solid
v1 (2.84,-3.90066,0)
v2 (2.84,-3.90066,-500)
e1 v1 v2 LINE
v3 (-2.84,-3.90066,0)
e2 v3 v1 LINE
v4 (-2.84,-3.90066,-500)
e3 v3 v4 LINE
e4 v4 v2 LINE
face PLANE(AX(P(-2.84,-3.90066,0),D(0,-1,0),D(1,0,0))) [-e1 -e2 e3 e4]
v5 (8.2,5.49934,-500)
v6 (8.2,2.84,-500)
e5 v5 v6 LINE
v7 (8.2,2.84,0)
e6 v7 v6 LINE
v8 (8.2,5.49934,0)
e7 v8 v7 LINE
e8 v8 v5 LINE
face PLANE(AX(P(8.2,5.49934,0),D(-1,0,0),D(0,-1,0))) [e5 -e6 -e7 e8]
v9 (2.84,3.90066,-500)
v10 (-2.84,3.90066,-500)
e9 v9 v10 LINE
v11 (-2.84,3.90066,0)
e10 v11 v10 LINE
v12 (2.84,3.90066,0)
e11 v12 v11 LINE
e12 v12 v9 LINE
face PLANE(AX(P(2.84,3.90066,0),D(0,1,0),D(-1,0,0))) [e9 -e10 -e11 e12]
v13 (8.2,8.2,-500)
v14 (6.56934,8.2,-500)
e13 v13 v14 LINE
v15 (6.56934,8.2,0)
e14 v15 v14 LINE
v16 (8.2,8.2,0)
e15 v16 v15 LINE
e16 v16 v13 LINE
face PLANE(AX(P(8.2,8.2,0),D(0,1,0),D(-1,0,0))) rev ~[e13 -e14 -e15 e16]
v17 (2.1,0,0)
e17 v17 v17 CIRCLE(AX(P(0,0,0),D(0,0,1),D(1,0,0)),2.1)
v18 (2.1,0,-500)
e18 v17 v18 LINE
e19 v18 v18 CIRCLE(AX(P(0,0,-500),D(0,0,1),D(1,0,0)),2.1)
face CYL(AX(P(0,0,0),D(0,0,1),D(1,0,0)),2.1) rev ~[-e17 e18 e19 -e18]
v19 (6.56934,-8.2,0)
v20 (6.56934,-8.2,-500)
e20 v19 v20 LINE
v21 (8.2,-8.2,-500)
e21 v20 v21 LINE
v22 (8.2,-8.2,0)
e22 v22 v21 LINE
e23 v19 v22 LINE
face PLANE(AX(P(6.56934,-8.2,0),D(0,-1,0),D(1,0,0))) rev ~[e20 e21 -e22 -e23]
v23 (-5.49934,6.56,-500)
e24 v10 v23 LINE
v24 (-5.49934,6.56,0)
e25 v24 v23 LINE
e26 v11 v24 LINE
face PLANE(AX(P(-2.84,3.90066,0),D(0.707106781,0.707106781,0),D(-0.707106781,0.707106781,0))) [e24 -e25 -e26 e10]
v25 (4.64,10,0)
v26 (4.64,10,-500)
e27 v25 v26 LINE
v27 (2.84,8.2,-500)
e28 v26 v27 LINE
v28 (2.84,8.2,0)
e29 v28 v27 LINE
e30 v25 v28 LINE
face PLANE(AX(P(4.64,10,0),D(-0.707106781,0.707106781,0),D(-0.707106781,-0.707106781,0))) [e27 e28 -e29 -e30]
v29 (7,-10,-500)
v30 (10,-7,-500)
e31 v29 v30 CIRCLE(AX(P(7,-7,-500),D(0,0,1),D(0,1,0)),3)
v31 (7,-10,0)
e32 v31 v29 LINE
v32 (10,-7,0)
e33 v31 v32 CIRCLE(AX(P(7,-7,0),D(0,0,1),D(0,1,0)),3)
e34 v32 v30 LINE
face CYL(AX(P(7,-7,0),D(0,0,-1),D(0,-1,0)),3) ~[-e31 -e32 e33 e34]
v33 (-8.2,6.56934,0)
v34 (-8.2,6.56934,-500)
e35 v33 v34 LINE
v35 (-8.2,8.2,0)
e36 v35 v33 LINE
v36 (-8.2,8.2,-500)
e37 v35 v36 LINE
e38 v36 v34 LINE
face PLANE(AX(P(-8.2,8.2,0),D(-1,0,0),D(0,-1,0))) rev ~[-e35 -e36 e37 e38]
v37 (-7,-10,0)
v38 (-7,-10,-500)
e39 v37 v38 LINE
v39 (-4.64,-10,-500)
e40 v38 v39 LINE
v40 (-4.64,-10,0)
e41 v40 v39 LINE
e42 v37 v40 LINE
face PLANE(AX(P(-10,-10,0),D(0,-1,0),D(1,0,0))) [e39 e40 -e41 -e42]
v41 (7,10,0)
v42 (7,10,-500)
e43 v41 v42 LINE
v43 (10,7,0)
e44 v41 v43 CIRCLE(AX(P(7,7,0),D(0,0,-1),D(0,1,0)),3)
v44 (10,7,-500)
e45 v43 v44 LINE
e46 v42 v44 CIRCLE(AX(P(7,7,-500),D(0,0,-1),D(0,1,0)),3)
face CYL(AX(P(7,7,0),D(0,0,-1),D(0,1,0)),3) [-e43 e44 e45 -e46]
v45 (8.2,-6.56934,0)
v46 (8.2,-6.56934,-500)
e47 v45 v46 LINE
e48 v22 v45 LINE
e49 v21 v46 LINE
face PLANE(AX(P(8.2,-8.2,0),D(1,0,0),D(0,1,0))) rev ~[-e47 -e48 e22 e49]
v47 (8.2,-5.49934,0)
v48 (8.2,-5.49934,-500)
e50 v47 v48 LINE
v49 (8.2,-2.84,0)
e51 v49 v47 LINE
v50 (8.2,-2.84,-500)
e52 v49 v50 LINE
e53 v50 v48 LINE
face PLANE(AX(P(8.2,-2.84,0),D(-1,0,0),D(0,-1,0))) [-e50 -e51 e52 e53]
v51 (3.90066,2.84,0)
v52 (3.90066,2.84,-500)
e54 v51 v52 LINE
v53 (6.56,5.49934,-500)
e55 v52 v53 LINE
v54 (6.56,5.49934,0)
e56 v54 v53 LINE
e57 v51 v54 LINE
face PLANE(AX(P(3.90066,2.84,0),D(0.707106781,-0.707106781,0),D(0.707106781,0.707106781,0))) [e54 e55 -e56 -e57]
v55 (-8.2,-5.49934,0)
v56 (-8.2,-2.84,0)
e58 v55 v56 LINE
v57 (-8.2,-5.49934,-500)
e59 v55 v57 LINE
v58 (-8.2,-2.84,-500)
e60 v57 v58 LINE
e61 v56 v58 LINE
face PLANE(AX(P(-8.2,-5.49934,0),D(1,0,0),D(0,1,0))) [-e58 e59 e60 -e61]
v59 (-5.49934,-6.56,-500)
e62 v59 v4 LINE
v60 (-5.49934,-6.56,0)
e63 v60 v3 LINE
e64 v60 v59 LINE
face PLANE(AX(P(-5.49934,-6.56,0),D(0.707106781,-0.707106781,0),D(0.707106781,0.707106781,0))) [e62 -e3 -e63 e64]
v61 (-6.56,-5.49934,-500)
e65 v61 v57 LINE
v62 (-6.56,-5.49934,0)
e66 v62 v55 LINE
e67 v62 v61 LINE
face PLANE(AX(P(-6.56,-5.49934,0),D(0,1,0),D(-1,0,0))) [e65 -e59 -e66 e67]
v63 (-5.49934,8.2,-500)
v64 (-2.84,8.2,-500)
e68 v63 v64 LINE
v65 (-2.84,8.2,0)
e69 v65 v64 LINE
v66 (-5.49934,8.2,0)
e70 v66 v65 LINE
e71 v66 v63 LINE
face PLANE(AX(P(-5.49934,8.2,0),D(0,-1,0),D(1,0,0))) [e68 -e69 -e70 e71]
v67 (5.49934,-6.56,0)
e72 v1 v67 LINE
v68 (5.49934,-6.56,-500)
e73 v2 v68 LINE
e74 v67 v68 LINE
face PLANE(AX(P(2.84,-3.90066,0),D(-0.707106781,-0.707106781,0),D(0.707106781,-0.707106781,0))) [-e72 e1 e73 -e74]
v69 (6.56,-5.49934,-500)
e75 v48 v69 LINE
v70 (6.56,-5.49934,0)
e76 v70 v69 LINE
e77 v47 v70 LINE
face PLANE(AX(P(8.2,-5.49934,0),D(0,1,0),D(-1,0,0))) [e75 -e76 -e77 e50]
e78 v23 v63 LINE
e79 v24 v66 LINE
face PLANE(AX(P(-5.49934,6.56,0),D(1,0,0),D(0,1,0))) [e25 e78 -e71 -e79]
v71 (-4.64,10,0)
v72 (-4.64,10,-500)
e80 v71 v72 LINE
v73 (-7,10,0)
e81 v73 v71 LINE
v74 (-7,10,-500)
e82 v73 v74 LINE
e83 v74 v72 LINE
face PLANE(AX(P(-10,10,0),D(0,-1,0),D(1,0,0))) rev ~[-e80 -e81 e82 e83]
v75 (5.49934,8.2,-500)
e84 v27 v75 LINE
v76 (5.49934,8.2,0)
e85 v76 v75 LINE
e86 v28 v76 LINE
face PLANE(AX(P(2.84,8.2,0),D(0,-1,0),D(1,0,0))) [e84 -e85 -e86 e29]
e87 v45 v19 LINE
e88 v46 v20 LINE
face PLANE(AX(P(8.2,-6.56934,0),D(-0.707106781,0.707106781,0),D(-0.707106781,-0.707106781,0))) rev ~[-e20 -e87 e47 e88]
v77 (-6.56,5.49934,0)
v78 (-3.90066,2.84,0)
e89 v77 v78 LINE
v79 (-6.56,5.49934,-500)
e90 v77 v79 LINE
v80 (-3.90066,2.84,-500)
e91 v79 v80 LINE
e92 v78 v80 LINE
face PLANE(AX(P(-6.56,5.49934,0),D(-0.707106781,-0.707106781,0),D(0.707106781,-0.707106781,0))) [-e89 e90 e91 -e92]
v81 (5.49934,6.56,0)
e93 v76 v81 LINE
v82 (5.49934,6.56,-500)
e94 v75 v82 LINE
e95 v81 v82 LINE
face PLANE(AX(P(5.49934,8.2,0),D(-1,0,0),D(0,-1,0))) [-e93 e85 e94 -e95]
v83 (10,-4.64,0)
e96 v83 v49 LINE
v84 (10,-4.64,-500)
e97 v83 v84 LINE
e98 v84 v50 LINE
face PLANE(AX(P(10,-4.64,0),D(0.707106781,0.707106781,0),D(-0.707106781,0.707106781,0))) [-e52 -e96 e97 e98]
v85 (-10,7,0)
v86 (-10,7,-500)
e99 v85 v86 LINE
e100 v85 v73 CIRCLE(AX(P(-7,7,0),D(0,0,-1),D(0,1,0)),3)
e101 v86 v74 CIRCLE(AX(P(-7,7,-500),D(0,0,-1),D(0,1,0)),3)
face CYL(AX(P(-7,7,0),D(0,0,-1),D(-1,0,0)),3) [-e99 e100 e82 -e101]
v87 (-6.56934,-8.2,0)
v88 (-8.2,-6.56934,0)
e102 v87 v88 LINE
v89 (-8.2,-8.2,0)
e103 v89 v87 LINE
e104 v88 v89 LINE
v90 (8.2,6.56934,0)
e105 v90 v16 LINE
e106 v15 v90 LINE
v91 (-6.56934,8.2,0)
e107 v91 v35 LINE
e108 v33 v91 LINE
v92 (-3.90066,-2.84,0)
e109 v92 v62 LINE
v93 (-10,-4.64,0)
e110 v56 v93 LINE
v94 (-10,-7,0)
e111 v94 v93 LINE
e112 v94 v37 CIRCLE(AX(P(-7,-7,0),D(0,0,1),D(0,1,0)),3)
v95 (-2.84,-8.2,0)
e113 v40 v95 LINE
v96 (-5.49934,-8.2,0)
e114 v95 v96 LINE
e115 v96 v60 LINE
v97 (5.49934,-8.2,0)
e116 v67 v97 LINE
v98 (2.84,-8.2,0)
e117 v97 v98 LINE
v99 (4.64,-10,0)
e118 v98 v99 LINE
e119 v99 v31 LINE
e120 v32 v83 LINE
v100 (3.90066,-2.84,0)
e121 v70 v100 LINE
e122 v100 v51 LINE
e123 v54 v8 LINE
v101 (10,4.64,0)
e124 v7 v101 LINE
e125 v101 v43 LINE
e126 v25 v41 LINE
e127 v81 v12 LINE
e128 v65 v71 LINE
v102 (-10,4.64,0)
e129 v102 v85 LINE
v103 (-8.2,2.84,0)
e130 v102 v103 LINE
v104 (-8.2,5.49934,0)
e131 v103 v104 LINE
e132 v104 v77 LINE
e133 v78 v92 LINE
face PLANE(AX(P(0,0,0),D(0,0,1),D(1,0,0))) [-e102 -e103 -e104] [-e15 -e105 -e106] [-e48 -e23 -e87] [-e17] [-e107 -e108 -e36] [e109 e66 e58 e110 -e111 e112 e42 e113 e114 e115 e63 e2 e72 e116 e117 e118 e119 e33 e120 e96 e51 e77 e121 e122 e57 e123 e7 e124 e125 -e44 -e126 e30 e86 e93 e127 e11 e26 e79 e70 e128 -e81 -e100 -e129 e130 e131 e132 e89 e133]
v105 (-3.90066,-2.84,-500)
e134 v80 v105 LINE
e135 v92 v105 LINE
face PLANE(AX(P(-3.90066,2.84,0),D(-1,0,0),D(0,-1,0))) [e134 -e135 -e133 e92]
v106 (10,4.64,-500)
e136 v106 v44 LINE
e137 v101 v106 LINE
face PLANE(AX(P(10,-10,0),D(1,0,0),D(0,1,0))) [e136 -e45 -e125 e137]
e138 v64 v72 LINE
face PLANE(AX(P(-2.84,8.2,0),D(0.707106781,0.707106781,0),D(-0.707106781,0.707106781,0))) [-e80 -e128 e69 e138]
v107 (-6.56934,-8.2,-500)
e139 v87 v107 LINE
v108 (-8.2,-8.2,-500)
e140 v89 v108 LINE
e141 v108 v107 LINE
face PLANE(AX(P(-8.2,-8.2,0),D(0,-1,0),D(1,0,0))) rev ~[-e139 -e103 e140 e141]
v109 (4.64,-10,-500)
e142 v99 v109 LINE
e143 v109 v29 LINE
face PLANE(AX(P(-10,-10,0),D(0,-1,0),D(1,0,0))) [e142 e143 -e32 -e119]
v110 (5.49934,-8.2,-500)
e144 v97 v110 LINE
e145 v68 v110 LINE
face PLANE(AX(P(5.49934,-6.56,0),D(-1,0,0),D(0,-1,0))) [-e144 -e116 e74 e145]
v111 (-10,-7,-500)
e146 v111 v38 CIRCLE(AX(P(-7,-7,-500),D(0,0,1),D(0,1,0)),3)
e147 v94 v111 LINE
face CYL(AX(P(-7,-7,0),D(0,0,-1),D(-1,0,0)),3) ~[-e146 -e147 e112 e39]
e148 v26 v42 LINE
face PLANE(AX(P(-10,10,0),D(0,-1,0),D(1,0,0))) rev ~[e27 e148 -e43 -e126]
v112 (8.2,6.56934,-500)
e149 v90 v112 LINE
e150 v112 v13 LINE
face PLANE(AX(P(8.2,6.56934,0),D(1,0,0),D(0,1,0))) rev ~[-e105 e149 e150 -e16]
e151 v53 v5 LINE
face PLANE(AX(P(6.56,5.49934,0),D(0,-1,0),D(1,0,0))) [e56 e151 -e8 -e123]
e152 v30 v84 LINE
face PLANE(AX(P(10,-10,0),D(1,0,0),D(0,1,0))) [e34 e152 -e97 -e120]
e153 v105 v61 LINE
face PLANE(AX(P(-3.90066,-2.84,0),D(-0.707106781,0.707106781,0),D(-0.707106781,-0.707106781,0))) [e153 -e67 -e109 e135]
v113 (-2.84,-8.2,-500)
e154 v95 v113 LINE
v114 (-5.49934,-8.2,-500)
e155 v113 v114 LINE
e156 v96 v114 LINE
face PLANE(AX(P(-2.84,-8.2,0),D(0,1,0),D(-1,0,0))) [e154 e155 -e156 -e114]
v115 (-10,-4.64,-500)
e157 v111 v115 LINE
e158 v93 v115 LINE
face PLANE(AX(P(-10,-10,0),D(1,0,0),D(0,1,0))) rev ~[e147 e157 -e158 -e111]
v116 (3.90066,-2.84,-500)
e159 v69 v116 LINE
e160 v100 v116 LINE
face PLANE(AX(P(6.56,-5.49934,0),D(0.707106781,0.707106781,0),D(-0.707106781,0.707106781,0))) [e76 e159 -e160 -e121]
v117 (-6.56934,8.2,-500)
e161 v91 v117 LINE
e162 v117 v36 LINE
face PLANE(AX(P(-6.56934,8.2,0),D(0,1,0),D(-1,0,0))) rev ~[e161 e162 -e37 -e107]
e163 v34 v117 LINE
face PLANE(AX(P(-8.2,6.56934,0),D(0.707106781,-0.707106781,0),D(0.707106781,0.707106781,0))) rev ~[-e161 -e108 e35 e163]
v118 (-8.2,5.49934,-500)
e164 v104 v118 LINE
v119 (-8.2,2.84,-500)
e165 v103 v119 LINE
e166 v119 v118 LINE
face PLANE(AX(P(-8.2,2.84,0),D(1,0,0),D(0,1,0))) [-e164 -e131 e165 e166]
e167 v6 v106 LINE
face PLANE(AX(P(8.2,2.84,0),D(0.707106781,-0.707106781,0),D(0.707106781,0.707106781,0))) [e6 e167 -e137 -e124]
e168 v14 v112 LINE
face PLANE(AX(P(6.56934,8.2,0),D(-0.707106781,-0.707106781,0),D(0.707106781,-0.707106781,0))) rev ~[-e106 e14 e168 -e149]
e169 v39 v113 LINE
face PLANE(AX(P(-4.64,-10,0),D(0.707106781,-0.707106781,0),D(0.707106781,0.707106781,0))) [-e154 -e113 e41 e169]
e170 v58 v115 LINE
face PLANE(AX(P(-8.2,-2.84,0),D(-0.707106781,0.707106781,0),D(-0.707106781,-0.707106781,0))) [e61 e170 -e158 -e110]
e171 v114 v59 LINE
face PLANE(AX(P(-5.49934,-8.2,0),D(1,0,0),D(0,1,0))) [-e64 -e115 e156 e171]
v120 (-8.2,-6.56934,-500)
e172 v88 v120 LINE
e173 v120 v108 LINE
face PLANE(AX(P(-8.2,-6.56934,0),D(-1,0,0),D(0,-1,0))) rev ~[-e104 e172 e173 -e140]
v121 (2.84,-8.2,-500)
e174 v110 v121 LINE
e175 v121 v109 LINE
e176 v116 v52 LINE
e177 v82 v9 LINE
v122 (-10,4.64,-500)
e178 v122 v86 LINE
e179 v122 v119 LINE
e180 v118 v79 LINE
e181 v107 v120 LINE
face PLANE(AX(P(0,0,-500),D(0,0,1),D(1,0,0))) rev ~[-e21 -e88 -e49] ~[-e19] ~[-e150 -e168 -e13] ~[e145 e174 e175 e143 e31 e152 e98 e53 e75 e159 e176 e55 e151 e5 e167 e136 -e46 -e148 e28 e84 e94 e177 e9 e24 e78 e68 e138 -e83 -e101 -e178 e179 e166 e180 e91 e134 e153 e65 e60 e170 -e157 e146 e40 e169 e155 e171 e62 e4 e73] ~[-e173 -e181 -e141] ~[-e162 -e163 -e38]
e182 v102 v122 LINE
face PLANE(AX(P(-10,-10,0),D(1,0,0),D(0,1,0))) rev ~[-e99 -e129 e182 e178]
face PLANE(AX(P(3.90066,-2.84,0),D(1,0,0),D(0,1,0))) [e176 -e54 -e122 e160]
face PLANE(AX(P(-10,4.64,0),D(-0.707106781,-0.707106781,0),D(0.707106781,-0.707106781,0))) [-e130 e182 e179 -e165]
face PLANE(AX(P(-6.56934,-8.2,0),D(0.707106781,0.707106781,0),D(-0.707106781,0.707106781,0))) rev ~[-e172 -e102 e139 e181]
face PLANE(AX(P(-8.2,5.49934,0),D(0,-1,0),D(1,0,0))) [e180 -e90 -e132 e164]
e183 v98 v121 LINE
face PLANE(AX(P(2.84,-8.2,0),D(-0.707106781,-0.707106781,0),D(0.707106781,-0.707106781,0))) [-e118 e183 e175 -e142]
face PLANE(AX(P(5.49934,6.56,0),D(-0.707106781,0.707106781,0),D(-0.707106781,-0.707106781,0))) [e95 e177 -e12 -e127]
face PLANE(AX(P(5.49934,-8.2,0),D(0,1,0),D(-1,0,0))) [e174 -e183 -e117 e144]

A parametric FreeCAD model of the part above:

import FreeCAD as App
import Part
import Sketcher
Q = App.Units.Quantity


def edges_at(feature, points):
    """Names of the edges that pass closest to the given points."""
    edges = feature.Shape.Edges
    near = lambda p: min(range(len(edges)), key=lambda i: edges[i].distToShape(Part.Vertex(*p))[0])
    return sorted({f"Edge{near(p) + 1}" for p in points})

doc = App.newDocument("Part")
params = doc.addObject("Spreadsheet::Sheet", "Params")
for row, (alias, value) in enumerate([
    ("sketch1_width", "20 mm"),
    ("pad1_length", "500 mm"),
    ("sketch2_width", "9.28 mm"),
    ("sketch2_width2", "5.68 mm"),
    ("sketch2_height", "1.64 mm"),
    ("pocket1_length", "500 mm"),
    ("sketch3_diameter", "4.2 mm"),
    ("pocket3_length", "500 mm"),
    ("fillet_radius", "3 mm"),
], start=1):
    params.set(f"A{row}", alias)
    params.set(f"B{row}", "=" + value)
    params.setAlias(f"B{row}", alias)

body = doc.addObject("PartDesign::Body", "Body")

# Sketch on XY plane
sketch1 = body.newObject("Sketcher::SketchObject", "Sketch")
sketch1.AttachmentSupport = (doc.getObject("XY_Plane"), [""])
sketch1.MapMode = "FlatFace"
sketch1.addGeometry(Part.LineSegment(App.Vector(-10, 10, 0), App.Vector(-10, -10, 0)), False)
sketch1.addGeometry(Part.LineSegment(App.Vector(-10, -10, 0), App.Vector(10, -10, 0)), False)
sketch1.addGeometry(Part.LineSegment(App.Vector(10, -10, 0), App.Vector(10, 10, 0)), False)
sketch1.addGeometry(Part.LineSegment(App.Vector(10, 10, 0), App.Vector(-10, 10, 0)), False)
sketch1.addConstraint(Sketcher.Constraint("Coincident", 0, 2, 1, 1))
sketch1.addConstraint(Sketcher.Constraint("Coincident", 1, 2, 2, 1))
sketch1.addConstraint(Sketcher.Constraint("Coincident", 2, 2, 3, 1))
sketch1.addConstraint(Sketcher.Constraint("Coincident", 3, 2, 0, 1))
sketch1.addConstraint(Sketcher.Constraint("Vertical", 0))
sketch1.addConstraint(Sketcher.Constraint("Horizontal", 1))
sketch1.addConstraint(Sketcher.Constraint("Vertical", 2))
sketch1.addConstraint(Sketcher.Constraint("Horizontal", 3))
sketch1.addConstraint(Sketcher.Constraint("Symmetric", 0, 2, 2, 2, -1, 1))
sketch1.addConstraint(Sketcher.Constraint("Equal", 3, 0))
sketch1.addConstraint(Sketcher.Constraint("DistanceX", 1, 1, 1, 2, Q("20 mm")))
sketch1.setExpression("Constraints[10]", "Params.sketch1_width")
pad1 = body.newObject("PartDesign::Pad", "Pad")
pad1.Profile = sketch1
pad1.setExpression("Length", "Params.pad1_length")
pad1.Reversed = True

# Sketch on XY plane
sketch2 = body.newObject("Sketcher::SketchObject", "Sketch001")
sketch2.AttachmentSupport = (doc.getObject("XY_Plane"), [""])
sketch2.MapMode = "FlatFace"
sketch2.addGeometry(Part.LineSegment(App.Vector(-2.8, -3.9, 0), App.Vector(-5.5, -6.6, 0)), False)
sketch2.addGeometry(Part.LineSegment(App.Vector(-5.5, -6.6, 0), App.Vector(-5.5, -8.2, 0)), False)
sketch2.addGeometry(Part.LineSegment(App.Vector(-5.5, -8.2, 0), App.Vector(-2.8, -8.2, 0)), False)
sketch2.addGeometry(Part.LineSegment(App.Vector(-2.8, -8.2, 0), App.Vector(-4.6, -10, 0)), False)
sketch2.addGeometry(Part.LineSegment(App.Vector(-4.6, -10, 0), App.Vector(4.6, -10, 0)), False)
sketch2.addGeometry(Part.LineSegment(App.Vector(4.6, -10, 0), App.Vector(2.8, -8.2, 0)), False)
sketch2.addGeometry(Part.LineSegment(App.Vector(2.8, -8.2, 0), App.Vector(5.5, -8.2, 0)), False)
sketch2.addGeometry(Part.LineSegment(App.Vector(5.5, -8.2, 0), App.Vector(5.5, -6.6, 0)), False)
sketch2.addGeometry(Part.LineSegment(App.Vector(5.5, -6.6, 0), App.Vector(2.8, -3.9, 0)), False)
sketch2.addGeometry(Part.LineSegment(App.Vector(2.8, -3.9, 0), App.Vector(-2.8, -3.9, 0)), False)
sketch2.addConstraint(Sketcher.Constraint("Coincident", 0, 2, 1, 1))
sketch2.addConstraint(Sketcher.Constraint("Coincident", 1, 2, 2, 1))
sketch2.addConstraint(Sketcher.Constraint("Coincident", 2, 2, 3, 1))
sketch2.addConstraint(Sketcher.Constraint("Coincident", 3, 2, 4, 1))
sketch2.addConstraint(Sketcher.Constraint("Coincident", 4, 2, 5, 1))
sketch2.addConstraint(Sketcher.Constraint("Coincident", 5, 2, 6, 1))
sketch2.addConstraint(Sketcher.Constraint("Coincident", 6, 2, 7, 1))
sketch2.addConstraint(Sketcher.Constraint("Coincident", 7, 2, 8, 1))
sketch2.addConstraint(Sketcher.Constraint("Coincident", 8, 2, 9, 1))
sketch2.addConstraint(Sketcher.Constraint("Coincident", 9, 2, 0, 1))
sketch2.addConstraint(Sketcher.Constraint("Vertical", 1))
sketch2.addConstraint(Sketcher.Constraint("Horizontal", 2))
sketch2.addConstraint(Sketcher.Constraint("Horizontal", 4))
sketch2.addConstraint(Sketcher.Constraint("Horizontal", 6))
sketch2.addConstraint(Sketcher.Constraint("Vertical", 7))
sketch2.addConstraint(Sketcher.Constraint("Horizontal", 9))
sketch2.addConstraint(Sketcher.Constraint("Symmetric", 2, 2, 5, 2, -2))
sketch2.addConstraint(Sketcher.Constraint("Symmetric", 0, 2, 7, 2, -2))
sketch2.addConstraint(Sketcher.Constraint("Parallel", 0, 3))
sketch2.addConstraint(Sketcher.Constraint("Perpendicular", 3, 5))
sketch2.addConstraint(Sketcher.Constraint("Parallel", 5, 8))
sketch2.addConstraint(Sketcher.Constraint("Vertical", 5, 2, 8, 2))
sketch2.addConstraint(Sketcher.Constraint("Vertical", 2, 2, 9, 2))
sketch2.addConstraint(Sketcher.Constraint("DistanceY", 3, 2, -1, 1, Q("10 mm")))
sketch2.addConstraint(Sketcher.Constraint("DistanceX", 4, 1, 4, 2, Q("9.28 mm")))
sketch2.addConstraint(Sketcher.Constraint("DistanceX", 9, 2, 9, 1, Q("5.68 mm")))
sketch2.addConstraint(Sketcher.Constraint("DistanceY", 1, 2, 1, 1, Q("1.64 mm")))
sketch2.addConstraint(Sketcher.Constraint("DistanceX", 2, 1, 2, 2, Q("2.65934 mm")))
sketch2.setExpression("Constraints[24]", "Params.sketch2_width")
sketch2.setExpression("Constraints[25]", "Params.sketch2_width2")
sketch2.setExpression("Constraints[26]", "Params.sketch2_height")
pocket1 = body.newObject("PartDesign::Pocket", "Pocket")
pocket1.Profile = sketch2
pocket1.setExpression("Length", "Params.pocket1_length")
doc.recompute()

polarpattern = body.newObject("PartDesign::PolarPattern", "PolarPattern")
polarpattern.Originals = [pocket1]
polarpattern.Axis = (doc.getObject("Z_Axis"), [""])
polarpattern.Angle = 360
polarpattern.Occurrences = 4
body.Tip = polarpattern

# Sketch on XY plane
sketch3 = body.newObject("Sketcher::SketchObject", "Sketch002")
sketch3.AttachmentSupport = (doc.getObject("XY_Plane"), [""])
sketch3.MapMode = "FlatFace"
sketch3.addGeometry(Part.Circle(App.Vector(0, 0, 0), App.Vector(0, 0, 1), 2.1), False)
sketch3.addConstraint(Sketcher.Constraint("Coincident", 0, 3, -1, 1))
sketch3.addConstraint(Sketcher.Constraint("Diameter", 0, Q("4.2 mm")))
sketch3.setExpression("Constraints[1]", "Params.sketch3_diameter")
pocket2 = body.newObject("PartDesign::Pocket", "Pocket001")
pocket2.Profile = sketch3
pocket2.Type = "UpToFirst"

# Sketch on XY plane
sketch4 = body.newObject("Sketcher::SketchObject", "Sketch003")
sketch4.AttachmentSupport = (doc.getObject("XY_Plane"), [""])
sketch4.MapMode = "FlatFace"
sketch4.addGeometry(Part.LineSegment(App.Vector(-8.2, 8.2, 0), App.Vector(-8.2, 6.6, 0)), False)
sketch4.addGeometry(Part.LineSegment(App.Vector(-8.2, 6.6, 0), App.Vector(-6.6, 8.2, 0)), False)
sketch4.addGeometry(Part.LineSegment(App.Vector(-6.6, 8.2, 0), App.Vector(-8.2, 8.2, 0)), False)
sketch4.addConstraint(Sketcher.Constraint("Coincident", 0, 2, 1, 1))
sketch4.addConstraint(Sketcher.Constraint("Coincident", 1, 2, 2, 1))
sketch4.addConstraint(Sketcher.Constraint("Coincident", 2, 2, 0, 1))
sketch4.addConstraint(Sketcher.Constraint("Vertical", 0))
sketch4.addConstraint(Sketcher.Constraint("Horizontal", 2))
sketch4.addConstraint(Sketcher.Constraint("Equal", 2, 0))
sketch4.addConstraint(Sketcher.Constraint("DistanceX", 0, 2, -1, 1, Q("8.2 mm")))
sketch4.addConstraint(Sketcher.Constraint("DistanceY", -1, 1, 1, 2, Q("8.2 mm")))
sketch4.addConstraint(Sketcher.Constraint("Distance", 1, Q("2.306102 mm")))
pocket3 = body.newObject("PartDesign::Pocket", "Pocket002")
pocket3.Profile = sketch4
pocket3.setExpression("Length", "Params.pocket3_length")
doc.recompute()

polarpattern2 = body.newObject("PartDesign::PolarPattern", "PolarPattern001")
polarpattern2.Originals = [pocket3]
polarpattern2.Axis = (doc.getObject("Z_Axis"), [""])
polarpattern2.Angle = 360
polarpattern2.Occurrences = 4
body.Tip = polarpattern2
doc.recompute()

fillet = body.newObject("PartDesign::Fillet", "Fillet")
fillet.Base = (polarpattern2, edges_at(polarpattern2, [
    (10, -10, -250),
    (-10, -10, -250),
    (-10, 10, -250),
    (10, 10, -250),
]))
fillet.setExpression("Radius", "Params.fillet_radius")

doc.recompute()
